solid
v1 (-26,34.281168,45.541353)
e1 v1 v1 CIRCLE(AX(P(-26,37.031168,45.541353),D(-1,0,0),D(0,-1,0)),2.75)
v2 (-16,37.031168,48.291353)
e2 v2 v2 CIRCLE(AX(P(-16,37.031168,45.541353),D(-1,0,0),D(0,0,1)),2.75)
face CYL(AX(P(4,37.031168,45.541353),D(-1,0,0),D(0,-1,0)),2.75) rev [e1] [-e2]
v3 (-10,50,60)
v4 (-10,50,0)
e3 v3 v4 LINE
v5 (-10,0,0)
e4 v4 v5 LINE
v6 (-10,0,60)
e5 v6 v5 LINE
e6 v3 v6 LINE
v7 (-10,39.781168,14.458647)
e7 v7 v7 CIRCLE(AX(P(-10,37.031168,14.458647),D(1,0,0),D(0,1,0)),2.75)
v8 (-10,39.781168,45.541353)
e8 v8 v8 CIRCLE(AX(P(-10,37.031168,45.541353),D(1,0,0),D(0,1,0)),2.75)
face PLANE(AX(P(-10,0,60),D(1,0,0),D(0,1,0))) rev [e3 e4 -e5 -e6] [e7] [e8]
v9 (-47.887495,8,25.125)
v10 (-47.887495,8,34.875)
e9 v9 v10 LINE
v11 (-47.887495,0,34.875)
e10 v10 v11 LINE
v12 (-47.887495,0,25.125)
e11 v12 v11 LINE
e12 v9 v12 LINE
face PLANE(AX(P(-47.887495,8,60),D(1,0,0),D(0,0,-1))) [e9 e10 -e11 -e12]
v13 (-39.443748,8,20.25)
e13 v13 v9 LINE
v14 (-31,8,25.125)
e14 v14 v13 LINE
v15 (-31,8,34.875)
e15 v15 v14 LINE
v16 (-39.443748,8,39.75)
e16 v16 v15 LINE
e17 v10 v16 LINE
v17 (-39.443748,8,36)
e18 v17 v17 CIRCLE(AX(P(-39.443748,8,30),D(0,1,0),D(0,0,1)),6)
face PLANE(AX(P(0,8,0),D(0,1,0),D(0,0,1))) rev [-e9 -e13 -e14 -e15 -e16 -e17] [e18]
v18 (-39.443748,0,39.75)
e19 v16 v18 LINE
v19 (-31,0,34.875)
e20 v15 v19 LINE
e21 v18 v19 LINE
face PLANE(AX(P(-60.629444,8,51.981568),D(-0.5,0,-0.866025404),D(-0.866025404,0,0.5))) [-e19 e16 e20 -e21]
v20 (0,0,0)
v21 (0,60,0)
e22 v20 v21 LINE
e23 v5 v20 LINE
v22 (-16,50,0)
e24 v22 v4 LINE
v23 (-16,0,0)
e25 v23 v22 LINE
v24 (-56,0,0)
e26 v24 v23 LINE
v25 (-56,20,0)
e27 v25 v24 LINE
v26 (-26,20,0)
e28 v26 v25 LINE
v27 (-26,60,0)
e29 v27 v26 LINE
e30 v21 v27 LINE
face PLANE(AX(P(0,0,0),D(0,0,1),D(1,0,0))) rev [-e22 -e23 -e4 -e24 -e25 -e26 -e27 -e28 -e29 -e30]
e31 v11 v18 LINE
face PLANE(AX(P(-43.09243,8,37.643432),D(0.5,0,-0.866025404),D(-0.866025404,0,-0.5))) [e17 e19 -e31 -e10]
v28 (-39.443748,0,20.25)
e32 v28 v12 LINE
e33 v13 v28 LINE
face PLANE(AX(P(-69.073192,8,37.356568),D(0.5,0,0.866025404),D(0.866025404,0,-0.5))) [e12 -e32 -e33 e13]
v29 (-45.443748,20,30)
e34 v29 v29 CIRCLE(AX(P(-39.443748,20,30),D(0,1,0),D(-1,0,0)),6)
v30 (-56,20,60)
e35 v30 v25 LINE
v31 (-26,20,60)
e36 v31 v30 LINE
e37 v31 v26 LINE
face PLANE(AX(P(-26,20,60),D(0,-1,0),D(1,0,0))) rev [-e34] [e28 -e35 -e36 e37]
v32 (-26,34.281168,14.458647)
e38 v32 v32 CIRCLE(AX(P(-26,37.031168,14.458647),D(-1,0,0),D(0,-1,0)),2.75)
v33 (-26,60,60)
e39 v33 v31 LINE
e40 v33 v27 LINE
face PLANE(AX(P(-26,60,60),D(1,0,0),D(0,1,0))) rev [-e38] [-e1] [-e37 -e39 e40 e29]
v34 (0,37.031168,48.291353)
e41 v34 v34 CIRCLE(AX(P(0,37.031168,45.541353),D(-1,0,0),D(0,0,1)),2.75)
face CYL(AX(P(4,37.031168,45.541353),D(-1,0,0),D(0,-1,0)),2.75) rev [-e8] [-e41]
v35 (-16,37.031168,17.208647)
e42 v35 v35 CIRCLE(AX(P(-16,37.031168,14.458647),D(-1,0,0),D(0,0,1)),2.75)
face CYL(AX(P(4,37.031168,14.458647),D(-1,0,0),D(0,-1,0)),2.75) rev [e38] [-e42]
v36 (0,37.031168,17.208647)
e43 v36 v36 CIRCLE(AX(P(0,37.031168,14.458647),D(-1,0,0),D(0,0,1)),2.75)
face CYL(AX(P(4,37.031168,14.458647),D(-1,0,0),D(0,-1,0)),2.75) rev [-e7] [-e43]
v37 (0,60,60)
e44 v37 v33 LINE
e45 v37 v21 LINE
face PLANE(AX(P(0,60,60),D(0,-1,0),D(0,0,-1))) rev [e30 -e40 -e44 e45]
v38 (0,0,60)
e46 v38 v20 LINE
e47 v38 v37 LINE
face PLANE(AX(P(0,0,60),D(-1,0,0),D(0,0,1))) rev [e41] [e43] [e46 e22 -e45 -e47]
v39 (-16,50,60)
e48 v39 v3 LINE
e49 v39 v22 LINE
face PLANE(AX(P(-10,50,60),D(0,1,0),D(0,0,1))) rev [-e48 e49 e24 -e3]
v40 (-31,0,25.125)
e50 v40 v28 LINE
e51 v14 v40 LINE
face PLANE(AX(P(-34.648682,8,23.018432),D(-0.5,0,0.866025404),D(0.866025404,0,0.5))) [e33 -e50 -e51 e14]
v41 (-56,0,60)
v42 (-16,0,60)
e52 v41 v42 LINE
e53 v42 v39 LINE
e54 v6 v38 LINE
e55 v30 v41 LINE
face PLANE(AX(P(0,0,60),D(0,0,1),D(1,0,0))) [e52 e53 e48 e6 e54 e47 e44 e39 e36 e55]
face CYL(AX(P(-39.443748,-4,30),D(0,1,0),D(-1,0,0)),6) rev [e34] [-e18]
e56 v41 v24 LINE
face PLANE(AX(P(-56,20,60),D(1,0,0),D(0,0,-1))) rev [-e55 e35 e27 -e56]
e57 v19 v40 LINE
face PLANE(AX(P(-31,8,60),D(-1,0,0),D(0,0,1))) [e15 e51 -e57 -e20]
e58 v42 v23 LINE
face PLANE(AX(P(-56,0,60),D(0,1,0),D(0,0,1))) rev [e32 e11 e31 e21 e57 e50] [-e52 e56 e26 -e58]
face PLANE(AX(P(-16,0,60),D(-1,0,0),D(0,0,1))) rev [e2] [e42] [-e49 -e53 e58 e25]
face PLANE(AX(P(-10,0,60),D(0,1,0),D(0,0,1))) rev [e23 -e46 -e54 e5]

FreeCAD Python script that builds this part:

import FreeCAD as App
import Part
import Sketcher
Q = App.Units.Quantity

doc = App.newDocument("Part")
body = doc.addObject("PartDesign::Body", "Body")

sketch1 = doc.addObject("Sketcher::SketchObject", "Sketch")
body.addObject(sketch1)
sketch1.AttachmentSupport = (doc.XY_Plane, [""])
sketch1.MapMode = "FlatFace"
sketch1.addGeometry([
    Part.LineSegment(App.Vector(0, 0, 0), App.Vector(0, 60, 0)),
    Part.LineSegment(App.Vector(0, 60, 0), App.Vector(-26, 60, 0)),
    Part.LineSegment(App.Vector(-26, 60, 0), App.Vector(-26, 20, 0)),
    Part.LineSegment(App.Vector(-26, 20, 0), App.Vector(-56, 20, 0)),
    Part.LineSegment(App.Vector(-56, 20, 0), App.Vector(-56, 0, 0)),
    Part.LineSegment(App.Vector(-56, 0, 0), App.Vector(-16, 0, 0)),
    Part.LineSegment(App.Vector(-16, 0, 0), App.Vector(-16, 50, 0)),
    Part.LineSegment(App.Vector(-16, 50, 0), App.Vector(-10, 50, 0)),
    Part.LineSegment(App.Vector(-10, 50, 0), App.Vector(-10, 0, 0)),
    Part.LineSegment(App.Vector(-10, 0, 0), App.Vector(0, 0, 0)),
], False)
sketch1.addConstraint([
    Sketcher.Constraint("Coincident", 0, 2, 1, 1),
    Sketcher.Constraint("Coincident", 1, 2, 2, 1),
    Sketcher.Constraint("Coincident", 2, 2, 3, 1),
    Sketcher.Constraint("Coincident", 3, 2, 4, 1),
    Sketcher.Constraint("Coincident", 4, 2, 5, 1),
    Sketcher.Constraint("Coincident", 5, 2, 6, 1),
    Sketcher.Constraint("Coincident", 6, 2, 7, 1),
    Sketcher.Constraint("Coincident", 7, 2, 8, 1),
    Sketcher.Constraint("Coincident", 8, 2, 9, 1),
    Sketcher.Constraint("Coincident", 9, 2, 0, 1),
    Sketcher.Constraint("Vertical", 0),
    Sketcher.Constraint("Horizontal", 1),
    Sketcher.Constraint("Vertical", 2),
    Sketcher.Constraint("Horizontal", 3),
    Sketcher.Constraint("Vertical", 4),
    Sketcher.Constraint("Horizontal", 5),
    Sketcher.Constraint("Vertical", 6),
    Sketcher.Constraint("Horizontal", 7),
    Sketcher.Constraint("Vertical", 8),
    Sketcher.Constraint("Horizontal", 9),
    Sketcher.Constraint("Coincident", 9, 2, -1, 1),
    Sketcher.Constraint("PointOnObject", 4, 2, -1),
    Sketcher.Constraint("Equal", 5, 2),
    Sketcher.Constraint("DistanceX", 1, 2, 1, 1, Q("26 mm")),
    Sketcher.Constraint("DistanceX", 3, 2, 3, 1, Q("30 mm")),
    Sketcher.Constraint("DistanceX", 5, 1, 5, 2, Q("40 mm")),
    Sketcher.Constraint("DistanceX", 7, 1, 7, 2, Q("6 mm")),
    Sketcher.Constraint("DistanceY", 0, 1, 0, 2, Q("60 mm")),
    Sketcher.Constraint("DistanceY", 6, 1, 6, 2, Q("50 mm")),
])
pad1 = doc.addObject("PartDesign::Pad", "Pad")
body.addObject(pad1)
pad1.Profile = sketch1
pad1.Length = 60

sketch2 = doc.addObject("Sketcher::SketchObject", "Sketch001")
body.addObject(sketch2)
sketch2.AttachmentSupport = (doc.XZ_Plane, [""])
sketch2.MapMode = "FlatFace"
sketch2.AttachmentOffset = App.Placement(App.Vector(0, 0, -20), App.Rotation())
sketch2.addGeometry(Part.Circle(App.Vector(-39, 30, 0), App.Vector(0, 0, 1), 6), False)
sketch2.addConstraint([
    Sketcher.Constraint("Diameter", 0, Q("12 mm")),
    Sketcher.Constraint("DistanceY", -1, 1, 0, 3, Q("30 mm")),
    Sketcher.Constraint("DistanceX", 0, 3, -1, 1, Q("39.443748 mm")),
])
pocket1 = doc.addObject("PartDesign::Pocket", "Pocket")
body.addObject(pocket1)
pocket1.Profile = sketch2
pocket1.Length = 24
pocket1.Reversed = True

sketch3 = doc.addObject("Sketcher::SketchObject", "Sketch002")
body.addObject(sketch3)
sketch3.AttachmentSupport = (doc.XZ_Plane, [""])
sketch3.MapMode = "FlatFace"
sketch3.AttachmentOffset = App.Placement(App.Vector(0, 0, -8), App.Rotation())
sketch3.addGeometry([
    Part.LineSegment(App.Vector(-31, 25, 0), App.Vector(-39, 20, 0)),
    Part.LineSegment(App.Vector(-39, 20, 0), App.Vector(-48, 25, 0)),
    Part.LineSegment(App.Vector(-48, 25, 0), App.Vector(-48, 35, 0)),
    Part.LineSegment(App.Vector(-48, 35, 0), App.Vector(-39, 40, 0)),
    Part.LineSegment(App.Vector(-39, 40, 0), App.Vector(-31, 35, 0)),
    Part.LineSegment(App.Vector(-31, 35, 0), App.Vector(-31, 25, 0)),
    Part.Circle(App.Vector(-39, 30, 0), App.Vector(0, 0, 1), 6),
], False)
sketch3.addConstraint([
    Sketcher.Constraint("Coincident", 0, 2, 1, 1),
    Sketcher.Constraint("Coincident", 1, 2, 2, 1),
    Sketcher.Constraint("Coincident", 2, 2, 3, 1),
    Sketcher.Constraint("Coincident", 3, 2, 4, 1),
    Sketcher.Constraint("Coincident", 4, 2, 5, 1),
    Sketcher.Constraint("Coincident", 5, 2, 0, 1),
    Sketcher.Constraint("Vertical", 2),
    Sketcher.Constraint("Vertical", 5),
    Sketcher.Constraint("Parallel", 0, 3),
    Sketcher.Constraint("Parallel", 1, 4),
    Sketcher.Constraint("Horizontal", 2, 2, 4, 2),
    Sketcher.Constraint("Horizontal", 1, 2, 5, 2),
    Sketcher.Constraint("Vertical", 6, 3, 0, 2),
    Sketcher.Constraint("Vertical", 0, 2, 3, 2),
    Sketcher.Constraint("Diameter", 6, Q("12 mm")),
    Sketcher.Constraint("Angle", 0, Q("-150 deg")),
    Sketcher.Constraint("DistanceY", -1, 1, 6, 3, Q("30 mm")),
    Sketcher.Constraint("DistanceX", 4, 2, -1, 1, Q("31 mm")),
    Sketcher.Constraint("DistanceY", 2, 1, 2, 2, Q("9.75 mm")),
    Sketcher.Constraint("DistanceY", 0, 2, 3, 2, Q("19.5 mm")),
    Sketcher.Constraint("DistanceY", -1, 1, 0, 2, Q("20.25 mm")),
])
pocket2 = doc.addObject("PartDesign::Pocket", "Pocket001")
body.addObject(pocket2)
pocket2.Profile = sketch3
pocket2.Length = 8
pocket2.Reversed = True

sketch4 = doc.addObject("Sketcher::SketchObject", "Sketch003")
body.addObject(sketch4)
sketch4.AttachmentSupport = (doc.YZ_Plane, [""])
sketch4.MapMode = "FlatFace"
sketch4.AttachmentOffset = App.Placement(App.Vector(0, 0, -26), App.Rotation())
sketch4.addGeometry([
    Part.Circle(App.Vector(37, 14.5, 0), App.Vector(0, 0, 1), 2.8),
    Part.Circle(App.Vector(37, 45.5, 0), App.Vector(0, 0, 1), 2.8),
], False)
sketch4.addConstraint([
    Sketcher.Constraint("Equal", 0, 1),
    Sketcher.Constraint("Vertical", 0, 3, 1, 3),
    Sketcher.Constraint("Diameter", 0, Q("5.5 mm")),
    Sketcher.Constraint("DistanceX", -1, 1, 0, 3, Q("37.031168 mm")),
    Sketcher.Constraint("DistanceY", -1, 1, 0, 3, Q("14.458647 mm")),
    Sketcher.Constraint("DistanceY", -1, 1, 1, 3, Q("45.541353 mm")),
])
pocket3 = doc.addObject("PartDesign::Pocket", "Pocket002")
body.addObject(pocket3)
pocket3.Profile = sketch4
pocket3.Length = 30
pocket3.Reversed = True

doc.recompute()
